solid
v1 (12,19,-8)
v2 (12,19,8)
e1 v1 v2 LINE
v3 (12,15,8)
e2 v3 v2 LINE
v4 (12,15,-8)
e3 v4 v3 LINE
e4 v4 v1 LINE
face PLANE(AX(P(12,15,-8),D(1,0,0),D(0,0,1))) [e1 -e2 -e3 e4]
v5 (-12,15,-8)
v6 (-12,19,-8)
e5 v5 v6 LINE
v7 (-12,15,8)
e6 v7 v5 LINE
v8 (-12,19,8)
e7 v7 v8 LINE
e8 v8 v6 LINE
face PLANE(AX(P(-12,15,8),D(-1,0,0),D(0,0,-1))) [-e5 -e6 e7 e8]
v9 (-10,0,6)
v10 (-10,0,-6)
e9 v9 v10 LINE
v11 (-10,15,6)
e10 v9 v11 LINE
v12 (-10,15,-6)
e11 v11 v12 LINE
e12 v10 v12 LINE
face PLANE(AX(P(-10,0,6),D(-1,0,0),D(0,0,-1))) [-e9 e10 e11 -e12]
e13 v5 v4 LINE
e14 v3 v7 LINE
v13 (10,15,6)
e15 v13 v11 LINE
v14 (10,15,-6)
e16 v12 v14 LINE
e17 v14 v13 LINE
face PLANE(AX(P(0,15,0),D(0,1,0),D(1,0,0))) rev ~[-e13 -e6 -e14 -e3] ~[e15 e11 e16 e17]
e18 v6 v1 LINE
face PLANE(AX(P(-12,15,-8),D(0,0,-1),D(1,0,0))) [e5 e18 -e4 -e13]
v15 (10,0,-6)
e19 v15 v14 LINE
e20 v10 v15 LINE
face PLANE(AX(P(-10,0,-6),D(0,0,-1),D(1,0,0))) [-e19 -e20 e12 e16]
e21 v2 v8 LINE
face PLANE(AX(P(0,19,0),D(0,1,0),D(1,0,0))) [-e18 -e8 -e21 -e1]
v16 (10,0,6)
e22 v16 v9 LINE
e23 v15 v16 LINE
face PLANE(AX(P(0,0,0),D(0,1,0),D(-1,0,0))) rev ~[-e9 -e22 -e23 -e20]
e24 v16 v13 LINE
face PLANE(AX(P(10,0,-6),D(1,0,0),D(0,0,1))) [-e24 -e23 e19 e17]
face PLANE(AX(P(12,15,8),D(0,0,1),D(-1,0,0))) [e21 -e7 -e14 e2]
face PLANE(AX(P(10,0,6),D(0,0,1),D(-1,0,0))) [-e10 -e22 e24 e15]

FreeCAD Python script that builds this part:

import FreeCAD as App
import Part
import Sketcher
Q = App.Units.Quantity


def add_polygon(sketch, points):
    """Adds a closed chain of lines whose ends are joined by coincident constraints."""
    first, n = sketch.GeometryCount, len(points)
    for a, b in zip(points, points[1:] + points[:1]):
        sketch.addGeometry(Part.LineSegment(App.Vector(*a, 0), App.Vector(*b, 0)), False)
    for i in range(n):
        sketch.addConstraint(Sketcher.Constraint("Coincident", first + i, 2, first + (i + 1) % n, 1))

doc = App.newDocument("Part")
body = doc.addObject("PartDesign::Body", "Body")

sketch1 = doc.addObject("Sketcher::SketchObject", "Sketch")
body.addObject(sketch1)
sketch1.AttachmentSupport = (doc.XZ_Plane, [""])
sketch1.MapMode = "FlatFace"
add_polygon(sketch1, [(-10, 6), (10, 6), (10, -6), (-10, -6)])
sketch1.addConstraint(Sketcher.Constraint("Horizontal", 0))
sketch1.addConstraint(Sketcher.Constraint("Vertical", 1))
sketch1.addConstraint(Sketcher.Constraint("Horizontal", 2))
sketch1.addConstraint(Sketcher.Constraint("Vertical", 3))
sketch1.addConstraint(Sketcher.Constraint("Symmetric", 0, 2, 2, 2, -1, 1))
sketch1.addConstraint(Sketcher.Constraint("DistanceX", 0, 1, 0, 2, Q("20 mm")))
sketch1.addConstraint(Sketcher.Constraint("DistanceY", 1, 2, 1, 1, Q("12 mm")))
pad1 = doc.addObject("PartDesign::Pad", "Pad")
body.addObject(pad1)
pad1.Profile = sketch1
pad1.Length = 15
pad1.Reversed = True

sketch2 = doc.addObject("Sketcher::SketchObject", "Sketch001")
body.addObject(sketch2)
sketch2.AttachmentSupport = (doc.XZ_Plane, [""])
sketch2.MapMode = "FlatFace"
sketch2.AttachmentOffset = App.Placement(App.Vector(0, 0, -15), App.Rotation())
add_polygon(sketch2, [(-12, 8), (12, 8), (12, -8), (-12, -8)])
sketch2.addConstraint(Sketcher.Constraint("Horizontal", 0))
sketch2.addConstraint(Sketcher.Constraint("Vertical", 1))
sketch2.addConstraint(Sketcher.Constraint("Horizontal", 2))
sketch2.addConstraint(Sketcher.Constraint("Vertical", 3))
sketch2.addConstraint(Sketcher.Constraint("Symmetric", 0, 2, 2, 2, -1, 1))
sketch2.addConstraint(Sketcher.Constraint("DistanceX", 0, 1, 0, 2, Q("24 mm")))
sketch2.addConstraint(Sketcher.Constraint("DistanceY", 1, 2, 1, 1, Q("16 mm")))
pad2 = doc.addObject("PartDesign::Pad", "Pad001")
body.addObject(pad2)
pad2.Profile = sketch2
pad2.Length = 4
pad2.Reversed = True

doc.recompute()
